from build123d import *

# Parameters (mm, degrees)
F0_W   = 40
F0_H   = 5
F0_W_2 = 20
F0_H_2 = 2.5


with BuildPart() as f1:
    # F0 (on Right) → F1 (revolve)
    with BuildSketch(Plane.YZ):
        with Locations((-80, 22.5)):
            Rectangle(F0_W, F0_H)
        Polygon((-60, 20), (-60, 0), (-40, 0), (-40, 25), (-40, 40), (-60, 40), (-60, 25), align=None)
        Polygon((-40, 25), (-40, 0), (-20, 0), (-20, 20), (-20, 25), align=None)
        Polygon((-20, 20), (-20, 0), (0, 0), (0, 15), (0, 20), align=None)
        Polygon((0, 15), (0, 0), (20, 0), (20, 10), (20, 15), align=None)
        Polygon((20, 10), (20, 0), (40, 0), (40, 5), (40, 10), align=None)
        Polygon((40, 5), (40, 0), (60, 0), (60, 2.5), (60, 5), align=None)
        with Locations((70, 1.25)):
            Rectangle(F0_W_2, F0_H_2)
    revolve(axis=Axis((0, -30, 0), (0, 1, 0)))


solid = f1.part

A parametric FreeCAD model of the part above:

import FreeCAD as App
import Part
import Sketcher
from FreeCAD import Vector


def add_polygon(sketch, points):
    """Adds a closed chain of lines whose ends are joined by coincident constraints."""
    first, n = sketch.GeometryCount, len(points)
    for a, b in zip(points, points[1:] + points[:1]):
        sketch.addGeometry(Part.LineSegment(App.Vector(*a, 0), App.Vector(*b, 0)), False)
    for i in range(n):
        sketch.addConstraint(Sketcher.Constraint("Coincident", first + i, 2, first + (i + 1) % n, 1))

doc = App.newDocument("Part")
body = doc.addObject("PartDesign::Body", "Body")

sketch1 = body.newObject("Sketcher::SketchObject", "Sketch")
sketch1.AttachmentSupport = (doc.getObject("YZ_Plane"), [""])
sketch1.MapMode = "FlatFace"
add_polygon(sketch1, [(-100, 25), (-100, 20), (-60, 20), (-60, 0), (80, 0), (80, 2.5), (60, 2.5), (60, 5), (40, 5), (40, 10), (20, 10), (20, 15), (0, 15), (0, 20), (-20, 20), (-20, 25), (-40, 25), (-40, 40), (-60, 40), (-60, 25)])
sketch1.addConstraint([
    Sketcher.Constraint("Vertical", 0),
    Sketcher.Constraint("Horizontal", 1),
    Sketcher.Constraint("Vertical", 2),
    Sketcher.Constraint("Horizontal", 3),
    Sketcher.Constraint("Vertical", 4),
    Sketcher.Constraint("Horizontal", 5),
    Sketcher.Constraint("Vertical", 6),
    Sketcher.Constraint("Horizontal", 7),
    Sketcher.Constraint("Vertical", 8),
    Sketcher.Constraint("Horizontal", 9),
    Sketcher.Constraint("Vertical", 10),
    Sketcher.Constraint("Horizontal", 11),
    Sketcher.Constraint("Vertical", 12),
    Sketcher.Constraint("Horizontal", 13),
    Sketcher.Constraint("Vertical", 14),
    Sketcher.Constraint("Horizontal", 15),
    Sketcher.Constraint("Vertical", 16),
    Sketcher.Constraint("Horizontal", 17),
    Sketcher.Constraint("Vertical", 18),
    Sketcher.Constraint("Horizontal", 19),
    Sketcher.Constraint("PointOnObject", 2, 2, -1),
    Sketcher.Constraint("PointOnObject", 11, 2, -2),
    Sketcher.Constraint("Horizontal", 1, 2, 12, 2),
    Sketcher.Constraint("Horizontal", 15, 2, 18, 2),
    Sketcher.Constraint("Vertical", 2, 2, 17, 2),
    Sketcher.Constraint("Equal", 5, 7),
    Sketcher.Constraint("Equal", 7, 9),
    Sketcher.Constraint("Equal", 9, 11),
    Sketcher.Constraint("Equal", 11, 13),
    Sketcher.Constraint("Equal", 13, 15),
    Sketcher.Constraint("Equal", 15, 17),
    Sketcher.Constraint("Equal", 17, 2),
    Sketcher.Constraint("Equal", 4, 6),
    Sketcher.Constraint("Equal", 0, 8),
    Sketcher.Constraint("Equal", 8, 10),
    Sketcher.Constraint("Equal", 10, 12),
    Sketcher.Constraint("DistanceX", 1, 1, 1, 2, 40.0),
    Sketcher.Constraint("DistanceX", 3, 1, 3, 2, 140.0),
    Sketcher.Constraint("DistanceY", 0, 2, 0, 1, 5.0),
    Sketcher.Constraint("DistanceY", 16, 1, 16, 2, 15.0),
])
revolution = body.newObject("PartDesign::Revolution", "Revolution")
revolution.Profile = sketch1
revolution.ReferenceAxis = (sketch1, ["H_Axis"])
revolution.Angle = 360

doc.recompute()
